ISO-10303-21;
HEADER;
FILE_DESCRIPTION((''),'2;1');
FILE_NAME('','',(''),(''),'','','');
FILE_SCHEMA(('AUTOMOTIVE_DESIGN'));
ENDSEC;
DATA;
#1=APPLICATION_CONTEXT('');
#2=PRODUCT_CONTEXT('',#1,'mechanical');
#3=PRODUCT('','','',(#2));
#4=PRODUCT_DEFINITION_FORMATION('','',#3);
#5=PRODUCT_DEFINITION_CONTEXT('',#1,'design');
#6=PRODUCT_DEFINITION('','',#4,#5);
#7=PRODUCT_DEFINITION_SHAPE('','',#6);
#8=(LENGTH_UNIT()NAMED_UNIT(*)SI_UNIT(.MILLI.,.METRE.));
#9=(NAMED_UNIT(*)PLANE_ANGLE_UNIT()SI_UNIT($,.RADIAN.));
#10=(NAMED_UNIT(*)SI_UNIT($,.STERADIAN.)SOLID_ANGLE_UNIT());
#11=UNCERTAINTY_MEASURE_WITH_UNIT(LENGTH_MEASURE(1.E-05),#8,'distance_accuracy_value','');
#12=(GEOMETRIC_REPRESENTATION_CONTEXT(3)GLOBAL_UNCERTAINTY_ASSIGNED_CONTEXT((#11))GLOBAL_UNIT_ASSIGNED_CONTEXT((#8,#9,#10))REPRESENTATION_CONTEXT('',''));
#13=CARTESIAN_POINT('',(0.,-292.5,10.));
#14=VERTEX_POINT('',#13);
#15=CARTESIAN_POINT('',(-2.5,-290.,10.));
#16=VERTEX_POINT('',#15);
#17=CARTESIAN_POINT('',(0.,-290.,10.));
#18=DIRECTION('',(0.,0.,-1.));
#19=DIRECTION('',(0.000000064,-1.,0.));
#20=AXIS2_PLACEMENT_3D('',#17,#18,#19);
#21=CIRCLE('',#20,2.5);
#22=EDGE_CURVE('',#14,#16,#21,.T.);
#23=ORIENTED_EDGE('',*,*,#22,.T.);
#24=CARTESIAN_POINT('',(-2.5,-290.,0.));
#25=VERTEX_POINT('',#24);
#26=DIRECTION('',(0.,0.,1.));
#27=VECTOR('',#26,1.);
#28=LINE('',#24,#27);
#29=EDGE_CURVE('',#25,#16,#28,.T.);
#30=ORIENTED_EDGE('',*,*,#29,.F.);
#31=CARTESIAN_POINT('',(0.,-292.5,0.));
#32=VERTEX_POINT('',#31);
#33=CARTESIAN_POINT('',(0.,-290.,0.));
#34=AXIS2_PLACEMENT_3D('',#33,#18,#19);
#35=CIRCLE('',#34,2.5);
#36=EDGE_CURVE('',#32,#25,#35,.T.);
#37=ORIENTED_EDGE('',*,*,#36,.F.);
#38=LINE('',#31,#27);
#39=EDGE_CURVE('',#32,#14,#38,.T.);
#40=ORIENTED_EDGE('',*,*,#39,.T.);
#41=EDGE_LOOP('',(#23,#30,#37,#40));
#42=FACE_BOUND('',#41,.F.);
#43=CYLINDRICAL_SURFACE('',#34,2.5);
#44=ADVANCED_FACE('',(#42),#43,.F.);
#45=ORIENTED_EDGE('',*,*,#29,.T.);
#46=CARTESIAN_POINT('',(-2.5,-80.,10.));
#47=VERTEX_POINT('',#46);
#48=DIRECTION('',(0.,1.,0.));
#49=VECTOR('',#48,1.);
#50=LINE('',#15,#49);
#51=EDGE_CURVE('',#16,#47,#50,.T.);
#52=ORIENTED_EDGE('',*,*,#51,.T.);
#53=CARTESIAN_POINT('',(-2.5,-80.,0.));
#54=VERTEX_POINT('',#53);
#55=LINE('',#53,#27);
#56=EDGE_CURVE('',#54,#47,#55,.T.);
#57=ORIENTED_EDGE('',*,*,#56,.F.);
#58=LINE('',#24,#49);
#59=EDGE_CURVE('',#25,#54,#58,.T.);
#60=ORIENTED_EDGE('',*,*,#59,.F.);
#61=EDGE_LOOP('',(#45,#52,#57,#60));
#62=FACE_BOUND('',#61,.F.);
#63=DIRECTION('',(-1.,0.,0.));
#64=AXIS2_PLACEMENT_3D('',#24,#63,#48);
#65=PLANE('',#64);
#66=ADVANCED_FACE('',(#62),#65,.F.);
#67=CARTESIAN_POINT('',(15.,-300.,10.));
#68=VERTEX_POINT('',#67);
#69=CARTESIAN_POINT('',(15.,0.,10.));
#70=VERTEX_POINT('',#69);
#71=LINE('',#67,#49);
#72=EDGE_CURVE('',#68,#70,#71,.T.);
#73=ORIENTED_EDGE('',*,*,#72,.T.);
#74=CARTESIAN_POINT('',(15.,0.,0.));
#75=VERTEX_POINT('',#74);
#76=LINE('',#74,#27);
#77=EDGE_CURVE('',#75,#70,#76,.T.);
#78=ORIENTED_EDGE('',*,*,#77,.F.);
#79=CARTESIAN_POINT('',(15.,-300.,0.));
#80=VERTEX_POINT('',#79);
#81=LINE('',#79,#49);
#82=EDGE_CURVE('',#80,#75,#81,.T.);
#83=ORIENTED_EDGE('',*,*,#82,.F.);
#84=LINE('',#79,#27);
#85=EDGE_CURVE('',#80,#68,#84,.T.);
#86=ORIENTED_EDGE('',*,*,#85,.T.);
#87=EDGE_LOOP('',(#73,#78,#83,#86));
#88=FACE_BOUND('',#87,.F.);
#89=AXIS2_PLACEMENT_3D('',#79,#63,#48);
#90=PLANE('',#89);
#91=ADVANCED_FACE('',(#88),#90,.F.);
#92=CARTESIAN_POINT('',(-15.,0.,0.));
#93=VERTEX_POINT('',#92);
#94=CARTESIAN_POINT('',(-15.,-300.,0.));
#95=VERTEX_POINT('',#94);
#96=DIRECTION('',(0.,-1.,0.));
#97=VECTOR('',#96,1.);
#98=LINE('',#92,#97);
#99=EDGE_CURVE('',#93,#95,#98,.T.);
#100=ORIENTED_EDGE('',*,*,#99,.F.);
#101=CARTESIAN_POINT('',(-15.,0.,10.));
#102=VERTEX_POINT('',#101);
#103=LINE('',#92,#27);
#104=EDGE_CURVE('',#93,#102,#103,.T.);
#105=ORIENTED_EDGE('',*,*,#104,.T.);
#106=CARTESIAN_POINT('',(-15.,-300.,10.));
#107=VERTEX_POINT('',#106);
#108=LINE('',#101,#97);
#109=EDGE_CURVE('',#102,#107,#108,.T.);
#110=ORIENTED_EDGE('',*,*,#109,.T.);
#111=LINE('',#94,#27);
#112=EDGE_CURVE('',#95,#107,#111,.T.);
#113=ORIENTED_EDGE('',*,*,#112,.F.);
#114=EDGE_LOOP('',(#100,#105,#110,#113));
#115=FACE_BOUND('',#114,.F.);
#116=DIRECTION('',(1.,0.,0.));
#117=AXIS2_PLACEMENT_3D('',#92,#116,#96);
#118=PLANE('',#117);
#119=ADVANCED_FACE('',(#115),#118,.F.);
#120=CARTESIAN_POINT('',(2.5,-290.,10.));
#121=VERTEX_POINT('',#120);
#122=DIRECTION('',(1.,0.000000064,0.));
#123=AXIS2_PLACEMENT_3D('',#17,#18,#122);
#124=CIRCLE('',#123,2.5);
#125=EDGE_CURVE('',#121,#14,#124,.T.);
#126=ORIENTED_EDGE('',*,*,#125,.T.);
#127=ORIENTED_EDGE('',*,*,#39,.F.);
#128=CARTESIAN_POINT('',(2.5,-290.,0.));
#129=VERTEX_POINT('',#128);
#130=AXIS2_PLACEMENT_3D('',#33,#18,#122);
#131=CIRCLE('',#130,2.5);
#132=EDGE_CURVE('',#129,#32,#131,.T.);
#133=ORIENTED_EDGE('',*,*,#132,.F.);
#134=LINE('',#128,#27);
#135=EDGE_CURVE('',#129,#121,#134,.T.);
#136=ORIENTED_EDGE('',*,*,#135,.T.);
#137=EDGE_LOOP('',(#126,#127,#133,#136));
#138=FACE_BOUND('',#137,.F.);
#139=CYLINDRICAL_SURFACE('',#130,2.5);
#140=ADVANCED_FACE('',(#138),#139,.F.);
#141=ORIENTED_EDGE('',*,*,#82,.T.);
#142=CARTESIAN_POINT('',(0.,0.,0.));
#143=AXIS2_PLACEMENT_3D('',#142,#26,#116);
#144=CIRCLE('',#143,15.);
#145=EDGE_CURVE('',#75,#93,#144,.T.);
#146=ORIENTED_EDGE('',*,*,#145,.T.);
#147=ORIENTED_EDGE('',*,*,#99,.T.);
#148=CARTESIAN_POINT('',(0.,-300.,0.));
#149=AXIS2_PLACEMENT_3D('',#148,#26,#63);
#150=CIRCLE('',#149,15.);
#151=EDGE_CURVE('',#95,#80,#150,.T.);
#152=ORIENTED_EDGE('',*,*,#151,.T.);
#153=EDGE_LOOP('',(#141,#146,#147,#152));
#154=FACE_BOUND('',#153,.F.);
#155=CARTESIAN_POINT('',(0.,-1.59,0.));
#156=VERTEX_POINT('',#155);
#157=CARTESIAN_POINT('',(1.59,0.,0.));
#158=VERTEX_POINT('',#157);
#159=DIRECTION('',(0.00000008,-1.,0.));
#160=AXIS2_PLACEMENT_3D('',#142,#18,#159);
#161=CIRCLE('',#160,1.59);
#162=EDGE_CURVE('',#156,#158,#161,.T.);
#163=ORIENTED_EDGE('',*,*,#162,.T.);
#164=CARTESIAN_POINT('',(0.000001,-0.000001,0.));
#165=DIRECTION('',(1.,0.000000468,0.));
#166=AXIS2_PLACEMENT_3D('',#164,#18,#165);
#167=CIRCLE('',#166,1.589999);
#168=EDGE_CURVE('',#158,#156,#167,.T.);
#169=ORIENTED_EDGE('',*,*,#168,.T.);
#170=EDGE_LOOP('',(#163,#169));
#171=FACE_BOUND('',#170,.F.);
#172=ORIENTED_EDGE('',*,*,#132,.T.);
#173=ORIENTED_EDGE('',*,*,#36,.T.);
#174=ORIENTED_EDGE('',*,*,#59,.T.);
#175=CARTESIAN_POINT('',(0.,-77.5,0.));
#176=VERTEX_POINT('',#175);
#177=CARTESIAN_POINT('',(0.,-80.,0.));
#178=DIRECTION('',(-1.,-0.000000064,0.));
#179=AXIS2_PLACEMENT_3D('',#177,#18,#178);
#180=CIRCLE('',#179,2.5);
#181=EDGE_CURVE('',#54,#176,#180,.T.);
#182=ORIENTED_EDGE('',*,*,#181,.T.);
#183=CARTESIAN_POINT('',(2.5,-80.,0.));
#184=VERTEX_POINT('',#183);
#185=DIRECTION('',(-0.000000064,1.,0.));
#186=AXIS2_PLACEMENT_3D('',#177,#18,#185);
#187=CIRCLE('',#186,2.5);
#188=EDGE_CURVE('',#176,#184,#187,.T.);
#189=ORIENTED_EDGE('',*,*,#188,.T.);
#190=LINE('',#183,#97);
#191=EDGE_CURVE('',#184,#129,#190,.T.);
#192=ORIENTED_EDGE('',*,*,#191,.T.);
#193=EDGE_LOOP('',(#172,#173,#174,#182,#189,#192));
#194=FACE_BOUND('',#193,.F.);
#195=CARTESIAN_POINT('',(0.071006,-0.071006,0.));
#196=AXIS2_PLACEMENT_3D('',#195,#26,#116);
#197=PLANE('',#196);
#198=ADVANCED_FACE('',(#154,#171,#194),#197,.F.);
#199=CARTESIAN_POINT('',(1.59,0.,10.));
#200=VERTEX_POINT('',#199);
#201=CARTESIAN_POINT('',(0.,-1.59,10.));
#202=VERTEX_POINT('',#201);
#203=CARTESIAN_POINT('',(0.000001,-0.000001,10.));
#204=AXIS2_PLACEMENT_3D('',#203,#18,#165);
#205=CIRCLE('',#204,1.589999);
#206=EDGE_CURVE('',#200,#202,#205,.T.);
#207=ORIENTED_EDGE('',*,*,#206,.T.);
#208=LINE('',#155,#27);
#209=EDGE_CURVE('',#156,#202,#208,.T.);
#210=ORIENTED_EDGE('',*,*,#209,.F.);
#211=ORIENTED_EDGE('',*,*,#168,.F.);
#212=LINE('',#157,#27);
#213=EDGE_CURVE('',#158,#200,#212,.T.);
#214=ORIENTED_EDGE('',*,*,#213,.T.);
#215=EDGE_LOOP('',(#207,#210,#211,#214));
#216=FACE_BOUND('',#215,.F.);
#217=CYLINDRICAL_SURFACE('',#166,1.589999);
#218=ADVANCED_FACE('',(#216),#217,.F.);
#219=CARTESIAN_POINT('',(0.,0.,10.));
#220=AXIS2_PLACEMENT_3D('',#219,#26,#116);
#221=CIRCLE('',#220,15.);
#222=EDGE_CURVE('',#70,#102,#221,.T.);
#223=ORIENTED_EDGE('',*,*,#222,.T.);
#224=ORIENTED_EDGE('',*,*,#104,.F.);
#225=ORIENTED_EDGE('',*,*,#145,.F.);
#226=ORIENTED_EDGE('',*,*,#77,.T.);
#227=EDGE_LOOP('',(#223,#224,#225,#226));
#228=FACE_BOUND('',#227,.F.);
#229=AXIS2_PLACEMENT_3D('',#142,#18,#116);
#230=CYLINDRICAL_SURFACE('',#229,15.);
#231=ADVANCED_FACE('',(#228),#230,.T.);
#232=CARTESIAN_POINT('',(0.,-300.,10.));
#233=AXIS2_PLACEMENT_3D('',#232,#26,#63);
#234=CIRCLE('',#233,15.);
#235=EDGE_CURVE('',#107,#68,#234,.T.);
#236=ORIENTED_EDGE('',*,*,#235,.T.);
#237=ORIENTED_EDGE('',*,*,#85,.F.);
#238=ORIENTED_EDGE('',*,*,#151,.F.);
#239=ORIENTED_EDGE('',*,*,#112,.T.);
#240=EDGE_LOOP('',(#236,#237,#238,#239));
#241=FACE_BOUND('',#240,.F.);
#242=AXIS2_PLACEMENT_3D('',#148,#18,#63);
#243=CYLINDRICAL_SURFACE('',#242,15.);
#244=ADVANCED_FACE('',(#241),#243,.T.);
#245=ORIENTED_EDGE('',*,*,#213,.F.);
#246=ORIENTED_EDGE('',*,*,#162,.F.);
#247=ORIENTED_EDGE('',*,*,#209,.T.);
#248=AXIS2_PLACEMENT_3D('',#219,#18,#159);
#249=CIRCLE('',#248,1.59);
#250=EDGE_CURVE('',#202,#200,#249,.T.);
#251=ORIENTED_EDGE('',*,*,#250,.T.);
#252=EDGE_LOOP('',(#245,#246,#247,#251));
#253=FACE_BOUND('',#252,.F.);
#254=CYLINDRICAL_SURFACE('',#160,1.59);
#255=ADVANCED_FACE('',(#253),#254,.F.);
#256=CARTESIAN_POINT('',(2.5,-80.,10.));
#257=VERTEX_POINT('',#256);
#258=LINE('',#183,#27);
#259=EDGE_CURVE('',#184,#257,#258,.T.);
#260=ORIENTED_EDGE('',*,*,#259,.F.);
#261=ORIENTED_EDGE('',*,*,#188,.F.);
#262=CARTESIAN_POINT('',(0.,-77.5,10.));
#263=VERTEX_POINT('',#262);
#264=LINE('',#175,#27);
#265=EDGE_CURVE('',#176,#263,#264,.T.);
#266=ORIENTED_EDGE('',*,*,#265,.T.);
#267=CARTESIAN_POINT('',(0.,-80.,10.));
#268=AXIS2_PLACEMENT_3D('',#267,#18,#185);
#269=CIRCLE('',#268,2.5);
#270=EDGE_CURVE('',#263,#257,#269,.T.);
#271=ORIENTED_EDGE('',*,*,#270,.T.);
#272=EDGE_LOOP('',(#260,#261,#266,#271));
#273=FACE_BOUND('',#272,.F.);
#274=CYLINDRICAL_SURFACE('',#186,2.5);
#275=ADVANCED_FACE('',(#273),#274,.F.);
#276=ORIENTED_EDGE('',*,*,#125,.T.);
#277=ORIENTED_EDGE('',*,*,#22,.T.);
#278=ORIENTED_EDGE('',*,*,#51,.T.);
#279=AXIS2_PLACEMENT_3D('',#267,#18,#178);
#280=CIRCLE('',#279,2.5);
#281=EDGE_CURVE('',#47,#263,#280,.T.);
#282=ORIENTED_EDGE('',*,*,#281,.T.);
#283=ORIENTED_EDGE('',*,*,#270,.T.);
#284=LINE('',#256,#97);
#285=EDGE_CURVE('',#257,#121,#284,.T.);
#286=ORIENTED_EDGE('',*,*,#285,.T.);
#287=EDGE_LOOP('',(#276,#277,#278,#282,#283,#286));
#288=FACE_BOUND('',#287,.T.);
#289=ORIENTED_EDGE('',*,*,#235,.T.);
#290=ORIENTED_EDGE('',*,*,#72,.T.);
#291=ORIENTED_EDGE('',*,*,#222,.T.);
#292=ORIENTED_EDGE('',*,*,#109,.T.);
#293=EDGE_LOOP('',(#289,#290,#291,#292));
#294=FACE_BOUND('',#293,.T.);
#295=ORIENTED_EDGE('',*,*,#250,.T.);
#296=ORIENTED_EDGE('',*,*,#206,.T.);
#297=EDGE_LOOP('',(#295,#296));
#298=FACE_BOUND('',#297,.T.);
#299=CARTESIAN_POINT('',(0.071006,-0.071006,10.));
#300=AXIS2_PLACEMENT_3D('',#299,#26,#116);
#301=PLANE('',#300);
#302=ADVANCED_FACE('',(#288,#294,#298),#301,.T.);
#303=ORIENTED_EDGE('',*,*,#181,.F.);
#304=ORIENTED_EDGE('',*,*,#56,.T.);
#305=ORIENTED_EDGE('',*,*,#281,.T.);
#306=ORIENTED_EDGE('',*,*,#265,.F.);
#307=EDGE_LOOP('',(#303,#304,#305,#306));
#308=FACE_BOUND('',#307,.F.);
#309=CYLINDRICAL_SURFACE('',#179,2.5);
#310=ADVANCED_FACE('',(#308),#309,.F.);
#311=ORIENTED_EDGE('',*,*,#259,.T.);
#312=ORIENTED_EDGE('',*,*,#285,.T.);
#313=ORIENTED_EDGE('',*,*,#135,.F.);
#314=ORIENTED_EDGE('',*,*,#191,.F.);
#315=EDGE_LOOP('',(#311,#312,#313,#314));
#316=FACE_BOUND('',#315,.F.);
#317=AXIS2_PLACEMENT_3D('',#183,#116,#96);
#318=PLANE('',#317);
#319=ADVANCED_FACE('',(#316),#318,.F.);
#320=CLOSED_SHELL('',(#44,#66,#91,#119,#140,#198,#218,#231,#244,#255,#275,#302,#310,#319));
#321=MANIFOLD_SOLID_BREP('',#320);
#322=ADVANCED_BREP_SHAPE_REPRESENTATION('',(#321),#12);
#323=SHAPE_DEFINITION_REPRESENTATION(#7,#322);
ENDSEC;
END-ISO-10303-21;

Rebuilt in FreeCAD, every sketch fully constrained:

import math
import FreeCAD as App
import Part
import Sketcher
Q = App.Units.Quantity

doc = App.newDocument("Part")
body = doc.addObject("PartDesign::Body", "Body")

# Sketch on XY plane
sketch1 = doc.addObject("Sketcher::SketchObject", "Sketch")
body.addObject(sketch1)
sketch1.AttachmentSupport = (doc.XY_Plane, [""])
sketch1.MapMode = "FlatFace"
sketch1.addGeometry(Part.ArcOfCircle(Part.Circle(App.Vector(0, 0, 0), App.Vector(0, 0, 1), 15), math.radians(0), math.radians(180)), False)
sketch1.addGeometry(Part.LineSegment(App.Vector(-15, 0, 0), App.Vector(-15, -300, 0)), False)
sketch1.addGeometry(Part.ArcOfCircle(Part.Circle(App.Vector(0, -300, 0), App.Vector(0, 0, 1), 15), math.radians(180), math.radians(360)), False)
sketch1.addGeometry(Part.LineSegment(App.Vector(15, -300, 0), App.Vector(15, 0, 0)), False)
sketch1.addGeometry(Part.LineSegment(App.Vector(-2.5, -290, 0), App.Vector(-2.5, -80, 0)), False)
sketch1.addGeometry(Part.ArcOfCircle(Part.Circle(App.Vector(0, -80, 0), App.Vector(0, 0, 1), 2.5), math.radians(90), math.radians(180)), False)
sketch1.addGeometry(Part.ArcOfCircle(Part.Circle(App.Vector(0, -80, 0), App.Vector(0, 0, 1), 2.5), math.radians(0), math.radians(90)), False)
sketch1.addGeometry(Part.LineSegment(App.Vector(2.5, -80, 0), App.Vector(2.5, -290, 0)), False)
sketch1.addGeometry(Part.ArcOfCircle(Part.Circle(App.Vector(0, -290, 0), App.Vector(0, 0, 1), 2.5), math.radians(-90), math.radians(0)), False)
sketch1.addGeometry(Part.ArcOfCircle(Part.Circle(App.Vector(0, -290, 0), App.Vector(0, 0, 1), 2.5), math.radians(180), math.radians(270)), False)
sketch1.addGeometry(Part.ArcOfCircle(Part.Circle(App.Vector(0, 0, 0), App.Vector(0, 0, 1), 1.6), math.radians(0), math.radians(270)), False)
sketch1.addGeometry(Part.ArcOfCircle(Part.Circle(App.Vector(0, 0, 0), App.Vector(0, 0, 1), 1.6), math.radians(-90), math.radians(0)), False)
sketch1.addConstraint(Sketcher.Constraint("Tangent", 0, 2, 1, 1))
sketch1.addConstraint(Sketcher.Constraint("Tangent", 1, 2, 2, 1))
sketch1.addConstraint(Sketcher.Constraint("Tangent", 2, 2, 3, 1))
sketch1.addConstraint(Sketcher.Constraint("Tangent", 3, 2, 0, 1))
sketch1.addConstraint(Sketcher.Constraint("Tangent", 4, 2, 5, 2))
sketch1.addConstraint(Sketcher.Constraint("Tangent", 5, 1, 6, 2))
sketch1.addConstraint(Sketcher.Constraint("Tangent", 6, 1, 7, 1))
sketch1.addConstraint(Sketcher.Constraint("Tangent", 7, 2, 8, 2))
sketch1.addConstraint(Sketcher.Constraint("Tangent", 8, 1, 9, 2))
sketch1.addConstraint(Sketcher.Constraint("Tangent", 9, 1, 4, 1))
sketch1.addConstraint(Sketcher.Constraint("Tangent", 10, 1, 11, 2))
sketch1.addConstraint(Sketcher.Constraint("Coincident", 11, 1, 10, 2))
sketch1.addConstraint(Sketcher.Constraint("Vertical", 1))
sketch1.addConstraint(Sketcher.Constraint("Vertical", 3))
sketch1.addConstraint(Sketcher.Constraint("Vertical", 4))
sketch1.addConstraint(Sketcher.Constraint("Vertical", 7))
sketch1.addConstraint(Sketcher.Constraint("Coincident", 0, 3, -1, 1))
sketch1.addConstraint(Sketcher.Constraint("Coincident", 10, 3, -1, 1))
sketch1.addConstraint(Sketcher.Constraint("Equal", 5, 6))
sketch1.addConstraint(Sketcher.Constraint("Equal", 6, 8))
sketch1.addConstraint(Sketcher.Constraint("PointOnObject", 5, 3, -2))
sketch1.addConstraint(Sketcher.Constraint("PointOnObject", 5, 1, -2))
sketch1.addConstraint(Sketcher.Constraint("PointOnObject", 8, 1, -2))
sketch1.addConstraint(Sketcher.Constraint("PointOnObject", 10, 1, -1))
sketch1.addConstraint(Sketcher.Constraint("PointOnObject", 11, 1, -2))
sketch1.addConstraint(Sketcher.Constraint("Radius", 0, Q("15 mm")))
sketch1.addConstraint(Sketcher.Constraint("Radius", 5, Q("2.5 mm")))
sketch1.addConstraint(Sketcher.Constraint("DistanceY", 1, 2, 1, 1, Q("300 mm")))
sketch1.addConstraint(Sketcher.Constraint("DistanceY", 4, 1, 4, 2, Q("210 mm")))
sketch1.addConstraint(Sketcher.Constraint("Radius", 10, Q("1.59 mm")))
sketch1.addConstraint(Sketcher.Constraint("DistanceY", 5, 3, -1, 1, Q("80 mm")))
pad1 = doc.addObject("PartDesign::Pad", "Pad")
body.addObject(pad1)
pad1.Profile = sketch1
pad1.Length = 10

doc.recompute()
